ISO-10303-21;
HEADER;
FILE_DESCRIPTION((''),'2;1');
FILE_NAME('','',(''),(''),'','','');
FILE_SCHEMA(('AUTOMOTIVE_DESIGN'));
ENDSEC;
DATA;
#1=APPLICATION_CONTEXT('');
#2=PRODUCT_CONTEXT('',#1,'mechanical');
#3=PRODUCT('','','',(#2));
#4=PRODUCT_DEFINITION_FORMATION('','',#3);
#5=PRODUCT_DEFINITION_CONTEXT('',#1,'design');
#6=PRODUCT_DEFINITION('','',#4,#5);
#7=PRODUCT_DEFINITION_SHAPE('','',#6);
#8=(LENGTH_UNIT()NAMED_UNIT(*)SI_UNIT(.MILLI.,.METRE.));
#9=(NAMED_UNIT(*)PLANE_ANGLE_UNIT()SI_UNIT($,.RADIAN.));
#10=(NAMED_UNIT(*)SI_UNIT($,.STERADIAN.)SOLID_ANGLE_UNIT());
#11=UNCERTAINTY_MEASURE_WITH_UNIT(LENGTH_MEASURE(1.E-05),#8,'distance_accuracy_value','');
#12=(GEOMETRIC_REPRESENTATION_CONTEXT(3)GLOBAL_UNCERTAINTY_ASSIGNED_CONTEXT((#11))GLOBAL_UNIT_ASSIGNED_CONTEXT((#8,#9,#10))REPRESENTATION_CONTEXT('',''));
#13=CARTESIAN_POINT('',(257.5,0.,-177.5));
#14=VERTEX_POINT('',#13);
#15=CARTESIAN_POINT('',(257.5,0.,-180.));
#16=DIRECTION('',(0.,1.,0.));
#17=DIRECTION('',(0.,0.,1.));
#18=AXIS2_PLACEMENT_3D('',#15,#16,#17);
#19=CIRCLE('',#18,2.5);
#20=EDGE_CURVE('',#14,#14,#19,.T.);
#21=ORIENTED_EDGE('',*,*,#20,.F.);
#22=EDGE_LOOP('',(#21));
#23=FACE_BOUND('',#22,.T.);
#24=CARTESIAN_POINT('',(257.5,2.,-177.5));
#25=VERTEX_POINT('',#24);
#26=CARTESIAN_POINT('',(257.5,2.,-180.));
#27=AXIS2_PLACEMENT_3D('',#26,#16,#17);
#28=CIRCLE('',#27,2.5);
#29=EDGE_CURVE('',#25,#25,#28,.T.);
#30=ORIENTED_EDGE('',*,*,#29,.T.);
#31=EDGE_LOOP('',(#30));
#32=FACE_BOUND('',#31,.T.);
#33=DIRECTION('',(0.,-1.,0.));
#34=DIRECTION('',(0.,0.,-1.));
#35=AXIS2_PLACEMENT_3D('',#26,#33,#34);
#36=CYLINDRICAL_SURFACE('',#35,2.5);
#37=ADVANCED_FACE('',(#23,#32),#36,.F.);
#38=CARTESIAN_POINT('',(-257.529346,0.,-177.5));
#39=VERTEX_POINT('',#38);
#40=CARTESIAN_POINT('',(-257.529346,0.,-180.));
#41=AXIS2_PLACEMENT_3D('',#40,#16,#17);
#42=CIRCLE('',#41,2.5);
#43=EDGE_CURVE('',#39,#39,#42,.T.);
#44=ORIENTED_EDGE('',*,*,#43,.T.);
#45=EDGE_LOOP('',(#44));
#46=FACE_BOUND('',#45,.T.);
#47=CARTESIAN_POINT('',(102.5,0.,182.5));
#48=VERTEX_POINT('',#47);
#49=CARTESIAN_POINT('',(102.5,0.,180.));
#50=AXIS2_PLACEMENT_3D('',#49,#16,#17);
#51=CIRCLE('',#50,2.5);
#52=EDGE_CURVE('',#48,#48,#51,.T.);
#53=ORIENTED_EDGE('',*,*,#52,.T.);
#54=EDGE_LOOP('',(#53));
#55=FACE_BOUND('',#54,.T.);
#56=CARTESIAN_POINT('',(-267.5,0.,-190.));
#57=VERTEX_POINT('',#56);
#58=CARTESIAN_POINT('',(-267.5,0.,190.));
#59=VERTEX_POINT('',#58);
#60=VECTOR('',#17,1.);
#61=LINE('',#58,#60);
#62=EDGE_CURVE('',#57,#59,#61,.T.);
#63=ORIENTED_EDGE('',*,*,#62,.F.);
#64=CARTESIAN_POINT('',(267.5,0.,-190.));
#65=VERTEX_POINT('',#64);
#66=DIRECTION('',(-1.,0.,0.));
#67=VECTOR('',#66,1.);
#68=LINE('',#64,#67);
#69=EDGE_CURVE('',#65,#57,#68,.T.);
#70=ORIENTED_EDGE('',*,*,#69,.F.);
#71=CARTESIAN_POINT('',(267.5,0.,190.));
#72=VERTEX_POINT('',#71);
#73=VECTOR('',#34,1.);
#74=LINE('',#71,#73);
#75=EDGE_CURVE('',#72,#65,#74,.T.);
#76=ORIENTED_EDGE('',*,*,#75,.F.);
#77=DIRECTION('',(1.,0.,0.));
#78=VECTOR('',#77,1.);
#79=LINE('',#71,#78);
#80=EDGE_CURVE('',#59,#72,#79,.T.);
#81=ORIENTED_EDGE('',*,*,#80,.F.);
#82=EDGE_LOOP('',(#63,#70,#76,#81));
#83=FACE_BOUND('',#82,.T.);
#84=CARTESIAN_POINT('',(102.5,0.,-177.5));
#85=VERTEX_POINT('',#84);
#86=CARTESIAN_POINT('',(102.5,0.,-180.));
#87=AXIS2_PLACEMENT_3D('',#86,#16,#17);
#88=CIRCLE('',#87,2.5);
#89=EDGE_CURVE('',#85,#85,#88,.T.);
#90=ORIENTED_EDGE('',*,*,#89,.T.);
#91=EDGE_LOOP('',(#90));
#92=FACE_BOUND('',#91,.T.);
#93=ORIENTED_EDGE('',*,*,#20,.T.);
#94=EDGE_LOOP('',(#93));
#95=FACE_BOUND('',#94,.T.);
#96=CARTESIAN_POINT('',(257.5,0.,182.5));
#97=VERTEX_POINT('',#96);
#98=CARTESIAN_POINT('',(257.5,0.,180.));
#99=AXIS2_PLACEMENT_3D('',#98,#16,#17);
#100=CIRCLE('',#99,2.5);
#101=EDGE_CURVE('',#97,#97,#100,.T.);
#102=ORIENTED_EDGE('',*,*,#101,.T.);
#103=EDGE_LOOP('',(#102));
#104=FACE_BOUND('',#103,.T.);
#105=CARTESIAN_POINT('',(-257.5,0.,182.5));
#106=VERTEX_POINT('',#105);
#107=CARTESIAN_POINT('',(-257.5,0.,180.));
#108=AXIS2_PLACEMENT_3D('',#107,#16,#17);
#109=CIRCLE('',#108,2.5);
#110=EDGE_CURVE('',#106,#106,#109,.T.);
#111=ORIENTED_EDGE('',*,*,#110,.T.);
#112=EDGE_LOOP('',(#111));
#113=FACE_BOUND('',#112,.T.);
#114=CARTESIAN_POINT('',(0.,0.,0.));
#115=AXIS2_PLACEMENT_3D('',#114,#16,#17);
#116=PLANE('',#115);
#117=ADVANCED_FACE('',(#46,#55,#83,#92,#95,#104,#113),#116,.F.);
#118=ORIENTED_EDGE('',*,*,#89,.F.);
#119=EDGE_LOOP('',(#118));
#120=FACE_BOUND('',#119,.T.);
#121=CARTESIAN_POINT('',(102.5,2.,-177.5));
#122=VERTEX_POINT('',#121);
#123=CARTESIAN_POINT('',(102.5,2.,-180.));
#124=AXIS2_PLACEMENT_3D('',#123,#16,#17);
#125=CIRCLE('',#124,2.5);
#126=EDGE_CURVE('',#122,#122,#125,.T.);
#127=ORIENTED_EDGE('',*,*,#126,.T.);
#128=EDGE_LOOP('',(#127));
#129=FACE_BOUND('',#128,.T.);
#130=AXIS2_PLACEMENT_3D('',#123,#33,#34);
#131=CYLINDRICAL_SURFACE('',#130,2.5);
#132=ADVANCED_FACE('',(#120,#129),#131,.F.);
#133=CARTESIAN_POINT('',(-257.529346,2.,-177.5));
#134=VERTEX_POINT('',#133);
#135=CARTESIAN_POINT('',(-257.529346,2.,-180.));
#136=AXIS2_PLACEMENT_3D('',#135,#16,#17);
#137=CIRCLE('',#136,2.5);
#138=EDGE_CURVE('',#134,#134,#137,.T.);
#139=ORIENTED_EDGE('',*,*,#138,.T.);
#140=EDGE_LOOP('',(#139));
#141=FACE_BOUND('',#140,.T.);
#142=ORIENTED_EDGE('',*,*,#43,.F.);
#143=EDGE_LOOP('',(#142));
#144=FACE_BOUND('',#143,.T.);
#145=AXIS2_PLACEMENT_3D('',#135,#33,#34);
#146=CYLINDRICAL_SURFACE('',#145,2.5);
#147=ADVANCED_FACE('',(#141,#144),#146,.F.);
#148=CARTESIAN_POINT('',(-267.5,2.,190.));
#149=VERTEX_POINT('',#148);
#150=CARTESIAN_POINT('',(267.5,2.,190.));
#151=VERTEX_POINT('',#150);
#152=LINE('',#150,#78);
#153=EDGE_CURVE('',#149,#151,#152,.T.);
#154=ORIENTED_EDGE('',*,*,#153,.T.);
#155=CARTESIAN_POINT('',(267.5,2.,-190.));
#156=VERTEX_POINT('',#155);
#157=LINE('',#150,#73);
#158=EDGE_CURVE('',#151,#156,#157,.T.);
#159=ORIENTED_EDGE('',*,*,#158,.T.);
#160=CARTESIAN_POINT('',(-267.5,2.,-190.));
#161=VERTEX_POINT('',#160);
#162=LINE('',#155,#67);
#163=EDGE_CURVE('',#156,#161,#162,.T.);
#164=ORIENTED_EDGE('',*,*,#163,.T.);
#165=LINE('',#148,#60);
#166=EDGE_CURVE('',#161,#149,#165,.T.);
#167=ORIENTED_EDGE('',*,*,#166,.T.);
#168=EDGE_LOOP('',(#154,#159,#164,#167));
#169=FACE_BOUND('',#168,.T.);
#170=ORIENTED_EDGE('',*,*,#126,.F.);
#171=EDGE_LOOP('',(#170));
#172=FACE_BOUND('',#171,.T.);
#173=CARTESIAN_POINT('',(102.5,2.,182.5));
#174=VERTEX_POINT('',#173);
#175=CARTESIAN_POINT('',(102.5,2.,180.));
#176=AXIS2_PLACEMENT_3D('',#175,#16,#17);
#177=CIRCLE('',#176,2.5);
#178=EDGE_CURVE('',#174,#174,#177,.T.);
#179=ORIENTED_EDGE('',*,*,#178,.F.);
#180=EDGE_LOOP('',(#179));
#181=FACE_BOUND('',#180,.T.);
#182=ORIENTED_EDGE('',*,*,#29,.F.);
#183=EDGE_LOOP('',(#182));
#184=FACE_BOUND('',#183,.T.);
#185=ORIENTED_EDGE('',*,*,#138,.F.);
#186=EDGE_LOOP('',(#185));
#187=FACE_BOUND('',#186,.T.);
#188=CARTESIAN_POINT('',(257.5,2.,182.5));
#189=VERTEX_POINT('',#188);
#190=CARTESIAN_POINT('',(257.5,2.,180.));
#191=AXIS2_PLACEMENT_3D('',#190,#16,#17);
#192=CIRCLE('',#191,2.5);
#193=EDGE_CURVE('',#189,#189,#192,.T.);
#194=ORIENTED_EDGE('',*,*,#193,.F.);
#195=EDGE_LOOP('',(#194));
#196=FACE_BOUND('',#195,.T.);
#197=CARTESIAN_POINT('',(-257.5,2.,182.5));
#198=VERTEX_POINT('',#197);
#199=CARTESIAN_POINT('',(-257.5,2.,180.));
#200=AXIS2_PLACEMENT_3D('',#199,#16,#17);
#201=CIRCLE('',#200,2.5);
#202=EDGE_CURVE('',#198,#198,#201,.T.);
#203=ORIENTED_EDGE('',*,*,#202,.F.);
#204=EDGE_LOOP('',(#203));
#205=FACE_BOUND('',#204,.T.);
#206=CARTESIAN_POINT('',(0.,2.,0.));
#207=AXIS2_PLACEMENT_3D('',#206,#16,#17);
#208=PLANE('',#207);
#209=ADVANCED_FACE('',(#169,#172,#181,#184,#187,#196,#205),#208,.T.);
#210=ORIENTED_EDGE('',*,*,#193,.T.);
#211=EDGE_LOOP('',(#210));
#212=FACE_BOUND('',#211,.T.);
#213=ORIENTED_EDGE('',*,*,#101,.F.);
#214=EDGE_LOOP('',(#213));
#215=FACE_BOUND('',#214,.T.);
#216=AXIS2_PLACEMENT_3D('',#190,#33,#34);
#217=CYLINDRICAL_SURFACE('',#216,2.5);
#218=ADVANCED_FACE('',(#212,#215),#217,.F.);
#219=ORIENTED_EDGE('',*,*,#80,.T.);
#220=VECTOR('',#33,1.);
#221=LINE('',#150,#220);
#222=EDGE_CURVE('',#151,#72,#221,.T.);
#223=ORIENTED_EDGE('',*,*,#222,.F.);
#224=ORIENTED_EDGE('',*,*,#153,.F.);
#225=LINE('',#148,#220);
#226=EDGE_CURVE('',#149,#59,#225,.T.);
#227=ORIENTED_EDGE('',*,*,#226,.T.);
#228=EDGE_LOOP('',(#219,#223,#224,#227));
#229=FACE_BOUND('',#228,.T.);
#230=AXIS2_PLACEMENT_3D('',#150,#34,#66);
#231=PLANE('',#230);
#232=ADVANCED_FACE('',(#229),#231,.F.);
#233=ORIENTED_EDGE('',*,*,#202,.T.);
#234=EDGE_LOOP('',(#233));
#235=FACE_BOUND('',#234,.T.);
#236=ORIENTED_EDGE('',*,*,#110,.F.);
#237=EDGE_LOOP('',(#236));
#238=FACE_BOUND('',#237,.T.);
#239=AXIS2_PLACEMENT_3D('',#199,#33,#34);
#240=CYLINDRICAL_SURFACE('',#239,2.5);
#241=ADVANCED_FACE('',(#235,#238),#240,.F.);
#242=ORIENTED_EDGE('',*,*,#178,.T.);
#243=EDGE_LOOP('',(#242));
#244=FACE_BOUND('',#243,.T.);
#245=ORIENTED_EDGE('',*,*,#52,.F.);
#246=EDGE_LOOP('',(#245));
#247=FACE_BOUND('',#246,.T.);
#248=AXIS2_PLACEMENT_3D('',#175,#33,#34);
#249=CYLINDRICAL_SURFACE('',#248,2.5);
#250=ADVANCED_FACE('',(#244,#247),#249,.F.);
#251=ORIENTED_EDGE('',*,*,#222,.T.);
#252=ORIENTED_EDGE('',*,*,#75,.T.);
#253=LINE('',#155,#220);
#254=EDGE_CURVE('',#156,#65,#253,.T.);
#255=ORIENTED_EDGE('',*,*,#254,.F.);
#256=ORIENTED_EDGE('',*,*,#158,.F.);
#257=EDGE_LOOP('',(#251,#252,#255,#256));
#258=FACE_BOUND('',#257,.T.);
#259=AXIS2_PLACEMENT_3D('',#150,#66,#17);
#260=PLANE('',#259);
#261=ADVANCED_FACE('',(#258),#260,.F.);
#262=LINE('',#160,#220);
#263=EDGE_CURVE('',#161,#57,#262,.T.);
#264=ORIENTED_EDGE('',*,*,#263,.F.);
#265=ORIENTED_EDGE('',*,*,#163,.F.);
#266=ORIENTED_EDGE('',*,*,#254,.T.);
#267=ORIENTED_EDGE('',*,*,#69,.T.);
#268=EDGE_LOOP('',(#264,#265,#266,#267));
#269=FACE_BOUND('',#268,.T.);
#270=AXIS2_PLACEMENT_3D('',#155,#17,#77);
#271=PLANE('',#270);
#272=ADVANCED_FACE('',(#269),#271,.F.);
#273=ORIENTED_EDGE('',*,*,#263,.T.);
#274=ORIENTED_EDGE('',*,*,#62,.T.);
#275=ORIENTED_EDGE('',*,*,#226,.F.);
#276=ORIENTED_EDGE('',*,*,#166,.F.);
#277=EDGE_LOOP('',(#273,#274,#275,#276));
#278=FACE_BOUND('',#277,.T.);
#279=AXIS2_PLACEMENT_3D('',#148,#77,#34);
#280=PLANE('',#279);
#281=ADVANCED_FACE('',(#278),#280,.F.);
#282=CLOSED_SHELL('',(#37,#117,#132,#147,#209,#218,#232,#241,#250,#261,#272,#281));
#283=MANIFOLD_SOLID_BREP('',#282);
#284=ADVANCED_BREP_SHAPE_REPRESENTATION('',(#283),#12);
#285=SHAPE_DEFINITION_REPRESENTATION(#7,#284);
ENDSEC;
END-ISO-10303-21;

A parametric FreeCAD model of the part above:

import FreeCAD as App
import Part
import Sketcher


def add_polygon(sketch, points):
    """Adds a closed chain of lines whose ends are joined by coincident constraints."""
    first, n = sketch.GeometryCount, len(points)
    for a, b in zip(points, points[1:] + points[:1]):
        sketch.addGeometry(Part.LineSegment(App.Vector(*a, 0), App.Vector(*b, 0)), False)
    for i in range(n):
        sketch.addConstraint(Sketcher.Constraint("Coincident", first + i, 2, first + (i + 1) % n, 1))

doc = App.newDocument("Part")
params = doc.addObject("Spreadsheet::Sheet", "Params")
for row, (alias, value) in enumerate([
    ("sketch1_diameter", "5 mm"),
    ("sketch1_width", "535 mm"),
    ("sketch1_height", "380 mm"),
    ("pad1_length", "2 mm"),
], start=1):
    params.set(f"A{row}", alias)
    params.set(f"B{row}", "=" + value)
    params.setAlias(f"B{row}", alias)

body = doc.addObject("PartDesign::Body", "Body")

sketch1 = doc.addObject("Sketcher::SketchObject", "Sketch")
body.addObject(sketch1)
sketch1.AttachmentSupport = (doc.XZ_Plane, [""])
sketch1.MapMode = "FlatFace"
add_polygon(sketch1, [(-267.5, -190), (-267.5, 190), (267.5, 190), (267.5, -190)])
sketch1.addGeometry(Part.Circle(App.Vector(-257.5, 180, 0), App.Vector(0, 0, 1), 2.5), False)
sketch1.addGeometry(Part.Circle(App.Vector(102.5, 180, 0), App.Vector(0, 0, 1), 2.5), False)
sketch1.addGeometry(Part.Circle(App.Vector(257.5, 180, 0), App.Vector(0, 0, 1), 2.5), False)
sketch1.addGeometry(Part.Circle(App.Vector(-257.529346, -180, 0), App.Vector(0, 0, 1), 2.5), False)
sketch1.addGeometry(Part.Circle(App.Vector(102.5, -180, 0), App.Vector(0, 0, 1), 2.5), False)
sketch1.addGeometry(Part.Circle(App.Vector(257.5, -180, 0), App.Vector(0, 0, 1), 2.5), False)
sketch1.addConstraint([
    Sketcher.Constraint("Vertical", 0),
    Sketcher.Constraint("Horizontal", 1),
    Sketcher.Constraint("Vertical", 2),
    Sketcher.Constraint("Horizontal", 3),
    Sketcher.Constraint("Equal", 4, 5),
    Sketcher.Constraint("Equal", 5, 6),
    Sketcher.Constraint("Equal", 6, 7),
    Sketcher.Constraint("Equal", 7, 8),
    Sketcher.Constraint("Equal", 8, 9),
    Sketcher.Constraint("Symmetric", 4, 3, 9, 3, -1, 1),
    Sketcher.Constraint("Symmetric", 0, 2, 2, 2, -1, 1),
    Sketcher.Constraint("Symmetric", 4, 3, 6, 3, -2),
    Sketcher.Constraint("Symmetric", 5, 3, 8, 3, -1),
    Sketcher.Constraint("Horizontal", 4, 3, 5, 3),
    Sketcher.Constraint("Horizontal", 7, 3, 8, 3),
    Sketcher.Constraint("Diameter", 4, 5.0),
    Sketcher.Constraint("DistanceX", 1, 1, 1, 2, 535.0),
    Sketcher.Constraint("DistanceY", 0, 1, 0, 2, 380.0),
    Sketcher.Constraint("DistanceY", -1, 1, 4, 3, 180.0),
    Sketcher.Constraint("DistanceX", 4, 3, 5, 3, 360.0),
    Sketcher.Constraint("DistanceX", 5, 3, 6, 3, 155.0),
    Sketcher.Constraint("DistanceX", 7, 3, -1, 1, 257.529346),
])
sketch1.setExpression("Constraints[19]", "Params.sketch1_diameter")
sketch1.setExpression("Constraints[20]", "Params.sketch1_width")
sketch1.setExpression("Constraints[21]", "Params.sketch1_height")
pad1 = doc.addObject("PartDesign::Pad", "Pad")
body.addObject(pad1)
pad1.Profile = sketch1
pad1.setExpression("Length", "Params.pad1_length")
pad1.Reversed = True

doc.recompute()
